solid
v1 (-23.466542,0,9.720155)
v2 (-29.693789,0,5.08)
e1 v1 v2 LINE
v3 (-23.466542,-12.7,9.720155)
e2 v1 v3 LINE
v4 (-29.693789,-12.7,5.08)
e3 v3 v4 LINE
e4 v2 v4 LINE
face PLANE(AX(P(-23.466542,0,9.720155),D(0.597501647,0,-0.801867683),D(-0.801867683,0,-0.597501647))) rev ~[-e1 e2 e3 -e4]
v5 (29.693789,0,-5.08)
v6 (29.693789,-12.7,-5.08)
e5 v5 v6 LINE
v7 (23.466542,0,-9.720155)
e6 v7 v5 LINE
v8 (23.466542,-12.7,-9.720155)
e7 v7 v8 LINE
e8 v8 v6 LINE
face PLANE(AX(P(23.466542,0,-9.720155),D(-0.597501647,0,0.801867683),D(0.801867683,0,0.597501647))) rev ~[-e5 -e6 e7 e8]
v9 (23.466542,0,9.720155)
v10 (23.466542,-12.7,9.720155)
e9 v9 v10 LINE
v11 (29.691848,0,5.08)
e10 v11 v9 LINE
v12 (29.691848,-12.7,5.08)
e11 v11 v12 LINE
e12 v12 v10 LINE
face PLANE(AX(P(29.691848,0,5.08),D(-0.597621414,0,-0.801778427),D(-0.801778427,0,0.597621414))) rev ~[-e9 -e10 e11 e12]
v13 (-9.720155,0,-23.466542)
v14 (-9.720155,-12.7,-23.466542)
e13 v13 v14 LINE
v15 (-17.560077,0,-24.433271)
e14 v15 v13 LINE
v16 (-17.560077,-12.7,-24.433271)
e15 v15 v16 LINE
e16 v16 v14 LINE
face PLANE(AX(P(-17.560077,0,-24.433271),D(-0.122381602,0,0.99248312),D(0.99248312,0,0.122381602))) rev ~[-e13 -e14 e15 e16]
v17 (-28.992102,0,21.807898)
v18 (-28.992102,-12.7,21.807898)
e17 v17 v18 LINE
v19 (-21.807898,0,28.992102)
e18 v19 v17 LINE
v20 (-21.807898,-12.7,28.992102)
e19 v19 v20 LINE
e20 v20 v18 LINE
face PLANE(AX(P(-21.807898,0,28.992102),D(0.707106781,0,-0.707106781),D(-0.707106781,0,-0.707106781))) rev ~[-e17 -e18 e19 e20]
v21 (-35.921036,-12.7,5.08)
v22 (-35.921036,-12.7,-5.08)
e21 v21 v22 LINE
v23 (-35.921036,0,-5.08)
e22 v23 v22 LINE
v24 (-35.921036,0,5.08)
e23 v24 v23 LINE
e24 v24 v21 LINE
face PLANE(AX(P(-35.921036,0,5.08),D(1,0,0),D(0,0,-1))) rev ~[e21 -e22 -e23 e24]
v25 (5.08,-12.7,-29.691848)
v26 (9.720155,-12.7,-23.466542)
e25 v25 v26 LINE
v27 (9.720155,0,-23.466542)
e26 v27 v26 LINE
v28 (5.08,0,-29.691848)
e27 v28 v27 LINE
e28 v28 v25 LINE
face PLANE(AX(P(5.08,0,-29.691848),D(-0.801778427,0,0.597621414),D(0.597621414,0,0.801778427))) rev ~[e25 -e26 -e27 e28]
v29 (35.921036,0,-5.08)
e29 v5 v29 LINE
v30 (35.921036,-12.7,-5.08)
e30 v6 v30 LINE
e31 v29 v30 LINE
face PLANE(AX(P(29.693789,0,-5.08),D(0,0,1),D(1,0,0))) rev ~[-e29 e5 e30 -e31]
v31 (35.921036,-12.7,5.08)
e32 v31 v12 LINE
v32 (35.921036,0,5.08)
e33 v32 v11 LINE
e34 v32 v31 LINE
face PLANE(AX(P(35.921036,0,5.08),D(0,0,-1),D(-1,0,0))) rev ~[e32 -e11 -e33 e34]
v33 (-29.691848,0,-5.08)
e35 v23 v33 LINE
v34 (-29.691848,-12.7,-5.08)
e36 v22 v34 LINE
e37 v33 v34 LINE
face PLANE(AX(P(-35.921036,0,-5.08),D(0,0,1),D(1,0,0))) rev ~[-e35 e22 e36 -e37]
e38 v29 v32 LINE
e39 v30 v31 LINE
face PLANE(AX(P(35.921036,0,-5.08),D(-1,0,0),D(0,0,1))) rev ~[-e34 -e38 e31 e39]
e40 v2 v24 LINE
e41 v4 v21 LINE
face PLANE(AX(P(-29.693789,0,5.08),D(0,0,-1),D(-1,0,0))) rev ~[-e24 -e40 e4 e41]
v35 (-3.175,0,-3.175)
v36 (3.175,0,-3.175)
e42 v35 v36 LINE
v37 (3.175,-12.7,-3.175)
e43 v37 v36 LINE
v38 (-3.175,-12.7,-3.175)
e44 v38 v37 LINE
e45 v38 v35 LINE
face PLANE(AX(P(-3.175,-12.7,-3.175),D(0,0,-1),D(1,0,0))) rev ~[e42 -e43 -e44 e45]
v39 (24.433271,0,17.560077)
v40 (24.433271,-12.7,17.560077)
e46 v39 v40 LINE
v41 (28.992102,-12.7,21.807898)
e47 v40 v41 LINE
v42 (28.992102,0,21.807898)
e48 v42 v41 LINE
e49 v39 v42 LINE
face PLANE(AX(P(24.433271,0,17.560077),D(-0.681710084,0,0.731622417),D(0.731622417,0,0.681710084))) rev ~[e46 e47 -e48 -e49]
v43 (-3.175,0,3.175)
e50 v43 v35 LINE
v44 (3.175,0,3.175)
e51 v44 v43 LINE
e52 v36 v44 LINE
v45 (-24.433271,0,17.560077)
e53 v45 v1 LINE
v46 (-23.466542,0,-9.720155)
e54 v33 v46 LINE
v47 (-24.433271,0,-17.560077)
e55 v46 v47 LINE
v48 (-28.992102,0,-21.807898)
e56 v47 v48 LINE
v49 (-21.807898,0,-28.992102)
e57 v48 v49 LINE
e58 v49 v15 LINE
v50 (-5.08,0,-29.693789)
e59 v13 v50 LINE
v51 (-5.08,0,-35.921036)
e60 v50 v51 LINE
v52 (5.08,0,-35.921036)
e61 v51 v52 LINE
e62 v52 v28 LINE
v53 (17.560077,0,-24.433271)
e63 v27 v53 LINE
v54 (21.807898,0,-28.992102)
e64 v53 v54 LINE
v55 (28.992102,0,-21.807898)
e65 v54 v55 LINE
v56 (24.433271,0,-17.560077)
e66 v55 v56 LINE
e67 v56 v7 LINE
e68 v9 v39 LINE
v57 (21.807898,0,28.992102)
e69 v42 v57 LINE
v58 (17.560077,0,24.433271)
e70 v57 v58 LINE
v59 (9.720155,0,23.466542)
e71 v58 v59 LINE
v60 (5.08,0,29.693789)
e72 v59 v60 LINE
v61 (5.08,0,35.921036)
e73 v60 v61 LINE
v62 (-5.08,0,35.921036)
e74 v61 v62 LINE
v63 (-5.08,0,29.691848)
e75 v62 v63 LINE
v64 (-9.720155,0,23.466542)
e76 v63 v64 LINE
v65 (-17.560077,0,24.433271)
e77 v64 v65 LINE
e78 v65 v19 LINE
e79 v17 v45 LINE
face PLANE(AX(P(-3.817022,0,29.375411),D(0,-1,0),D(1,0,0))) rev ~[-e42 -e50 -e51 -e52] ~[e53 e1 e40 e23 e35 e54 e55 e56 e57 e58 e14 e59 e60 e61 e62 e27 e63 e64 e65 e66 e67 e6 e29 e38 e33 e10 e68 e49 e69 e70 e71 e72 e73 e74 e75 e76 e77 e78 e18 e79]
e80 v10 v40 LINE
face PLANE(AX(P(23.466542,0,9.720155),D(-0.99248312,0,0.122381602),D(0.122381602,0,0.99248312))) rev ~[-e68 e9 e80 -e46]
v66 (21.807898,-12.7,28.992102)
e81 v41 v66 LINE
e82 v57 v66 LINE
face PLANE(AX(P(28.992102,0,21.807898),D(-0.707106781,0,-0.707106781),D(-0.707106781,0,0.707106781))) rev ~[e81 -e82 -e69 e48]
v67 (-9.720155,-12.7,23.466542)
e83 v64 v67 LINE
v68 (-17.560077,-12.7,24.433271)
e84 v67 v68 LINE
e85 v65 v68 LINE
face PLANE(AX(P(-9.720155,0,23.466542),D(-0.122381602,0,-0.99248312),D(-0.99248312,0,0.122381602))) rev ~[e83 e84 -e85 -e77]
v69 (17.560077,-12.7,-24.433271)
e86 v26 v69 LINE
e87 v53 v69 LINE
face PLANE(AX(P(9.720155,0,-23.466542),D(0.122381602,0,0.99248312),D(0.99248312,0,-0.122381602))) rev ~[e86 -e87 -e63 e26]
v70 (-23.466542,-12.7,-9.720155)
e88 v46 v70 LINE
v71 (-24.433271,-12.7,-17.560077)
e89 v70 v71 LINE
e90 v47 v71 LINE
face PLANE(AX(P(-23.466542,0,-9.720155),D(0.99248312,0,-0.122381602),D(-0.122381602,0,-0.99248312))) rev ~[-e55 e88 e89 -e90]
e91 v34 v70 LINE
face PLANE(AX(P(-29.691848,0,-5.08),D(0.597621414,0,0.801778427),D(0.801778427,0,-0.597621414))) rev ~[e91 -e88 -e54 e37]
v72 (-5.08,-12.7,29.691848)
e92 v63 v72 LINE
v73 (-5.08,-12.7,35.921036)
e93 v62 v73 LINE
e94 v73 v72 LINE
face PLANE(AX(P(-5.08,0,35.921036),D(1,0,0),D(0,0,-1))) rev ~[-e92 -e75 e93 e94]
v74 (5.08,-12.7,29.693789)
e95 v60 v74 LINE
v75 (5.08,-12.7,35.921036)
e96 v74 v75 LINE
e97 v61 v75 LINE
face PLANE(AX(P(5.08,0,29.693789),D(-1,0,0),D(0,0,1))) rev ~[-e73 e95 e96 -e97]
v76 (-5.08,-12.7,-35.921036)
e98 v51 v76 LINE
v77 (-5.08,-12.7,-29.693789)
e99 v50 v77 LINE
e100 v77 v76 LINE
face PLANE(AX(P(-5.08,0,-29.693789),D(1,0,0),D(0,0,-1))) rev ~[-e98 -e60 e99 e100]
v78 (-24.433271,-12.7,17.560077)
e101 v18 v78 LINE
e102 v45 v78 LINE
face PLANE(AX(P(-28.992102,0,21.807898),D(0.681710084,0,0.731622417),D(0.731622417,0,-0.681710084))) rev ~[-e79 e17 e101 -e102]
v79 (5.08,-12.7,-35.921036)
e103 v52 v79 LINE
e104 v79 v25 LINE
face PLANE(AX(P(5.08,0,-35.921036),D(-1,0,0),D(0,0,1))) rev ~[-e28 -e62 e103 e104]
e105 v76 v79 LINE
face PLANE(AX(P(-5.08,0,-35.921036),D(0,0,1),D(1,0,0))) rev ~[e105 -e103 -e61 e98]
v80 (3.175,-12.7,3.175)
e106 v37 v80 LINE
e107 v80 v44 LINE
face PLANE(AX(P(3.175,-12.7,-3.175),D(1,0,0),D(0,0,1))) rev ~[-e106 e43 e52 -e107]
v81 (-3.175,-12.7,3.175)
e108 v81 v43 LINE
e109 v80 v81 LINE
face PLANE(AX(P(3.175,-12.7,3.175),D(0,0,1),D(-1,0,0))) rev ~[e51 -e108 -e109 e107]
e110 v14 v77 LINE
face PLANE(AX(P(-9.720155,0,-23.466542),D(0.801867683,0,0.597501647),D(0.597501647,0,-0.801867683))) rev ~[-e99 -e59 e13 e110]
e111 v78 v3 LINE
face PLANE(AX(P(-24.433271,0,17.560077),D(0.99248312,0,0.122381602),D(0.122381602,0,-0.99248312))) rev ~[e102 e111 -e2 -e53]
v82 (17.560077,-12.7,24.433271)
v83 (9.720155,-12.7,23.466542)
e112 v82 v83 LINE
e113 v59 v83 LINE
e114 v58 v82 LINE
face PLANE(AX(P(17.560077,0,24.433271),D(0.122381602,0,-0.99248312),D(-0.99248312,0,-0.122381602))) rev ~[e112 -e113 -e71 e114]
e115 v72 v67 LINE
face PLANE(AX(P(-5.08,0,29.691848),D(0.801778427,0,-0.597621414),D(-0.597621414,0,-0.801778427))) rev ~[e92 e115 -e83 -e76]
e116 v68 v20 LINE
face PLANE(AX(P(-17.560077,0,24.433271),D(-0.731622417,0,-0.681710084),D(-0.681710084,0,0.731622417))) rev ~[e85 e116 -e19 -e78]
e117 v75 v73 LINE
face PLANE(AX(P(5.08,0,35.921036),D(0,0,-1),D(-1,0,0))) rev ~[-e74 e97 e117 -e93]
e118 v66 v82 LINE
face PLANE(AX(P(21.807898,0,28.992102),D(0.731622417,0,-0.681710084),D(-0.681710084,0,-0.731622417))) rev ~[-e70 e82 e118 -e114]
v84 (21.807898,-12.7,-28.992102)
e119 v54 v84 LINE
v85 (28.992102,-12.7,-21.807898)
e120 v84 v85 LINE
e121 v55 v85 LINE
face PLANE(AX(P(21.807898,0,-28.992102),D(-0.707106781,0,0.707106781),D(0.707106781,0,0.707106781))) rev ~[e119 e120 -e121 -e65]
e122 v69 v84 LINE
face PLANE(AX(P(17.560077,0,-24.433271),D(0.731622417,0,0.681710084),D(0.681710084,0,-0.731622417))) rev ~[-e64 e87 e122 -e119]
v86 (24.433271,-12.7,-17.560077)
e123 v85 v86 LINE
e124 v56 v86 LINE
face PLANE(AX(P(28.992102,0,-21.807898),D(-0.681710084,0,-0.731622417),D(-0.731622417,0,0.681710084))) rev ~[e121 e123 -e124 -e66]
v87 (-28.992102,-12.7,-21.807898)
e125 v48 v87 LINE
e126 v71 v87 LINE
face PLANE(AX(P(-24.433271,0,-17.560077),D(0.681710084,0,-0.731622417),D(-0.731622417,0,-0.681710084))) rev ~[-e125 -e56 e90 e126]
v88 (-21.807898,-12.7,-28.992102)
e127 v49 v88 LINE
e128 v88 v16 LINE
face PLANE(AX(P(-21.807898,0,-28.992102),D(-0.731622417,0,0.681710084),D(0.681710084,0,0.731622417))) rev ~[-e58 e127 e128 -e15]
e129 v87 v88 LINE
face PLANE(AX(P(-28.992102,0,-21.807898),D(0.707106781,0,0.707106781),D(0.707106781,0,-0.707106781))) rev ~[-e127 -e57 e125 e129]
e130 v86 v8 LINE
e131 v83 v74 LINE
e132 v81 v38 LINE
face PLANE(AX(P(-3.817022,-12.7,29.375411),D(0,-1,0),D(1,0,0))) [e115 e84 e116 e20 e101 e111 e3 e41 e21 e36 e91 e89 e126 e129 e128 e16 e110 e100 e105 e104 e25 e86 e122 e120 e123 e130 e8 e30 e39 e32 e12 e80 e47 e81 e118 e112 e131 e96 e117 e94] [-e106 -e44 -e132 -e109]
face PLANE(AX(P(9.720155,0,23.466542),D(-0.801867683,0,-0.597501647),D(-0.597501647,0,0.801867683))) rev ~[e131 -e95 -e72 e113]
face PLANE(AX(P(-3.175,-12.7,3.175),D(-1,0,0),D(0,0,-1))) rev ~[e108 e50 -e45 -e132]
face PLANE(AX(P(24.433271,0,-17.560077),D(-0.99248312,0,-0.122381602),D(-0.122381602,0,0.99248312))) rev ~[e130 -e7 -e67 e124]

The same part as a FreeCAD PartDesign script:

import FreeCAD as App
import Part
import Sketcher

V = App.Vector
Q = App.Units.Quantity


def add_polygon(sketch, points):
    """Adds a closed chain of lines whose ends are joined by coincident constraints."""
    first, n = sketch.GeometryCount, len(points)
    for a, b in zip(points, points[1:] + points[:1]):
        sketch.addGeometry(Part.LineSegment(App.Vector(*a, 0), App.Vector(*b, 0)), False)
    for i in range(n):
        sketch.addConstraint(Sketcher.Constraint("Coincident", first + i, 2, first + (i + 1) % n, 1))

doc = App.newDocument("Part")
body = doc.addObject("PartDesign::Body", "Body")

sketch1 = body.newObject("Sketcher::SketchObject", "Sketch")
sketch1.AttachmentSupport = (doc.getObject("XZ_Plane"), [""])
sketch1.MapMode = "FlatFace"
add_polygon(sketch1, [(10, 23), (5, 30), (5, 36), (-5, 36), (-5, 30), (-10, 23), (-18, 24), (-22, 29), (-29, 22), (-24, 18), (-23, 10), (-30, 5), (-36, 5), (-36, -5), (-30, -5), (-23, -10), (-24, -18), (-29, -22), (-22, -29), (-18, -24), (-10, -23), (-5, -30), (-5, -36), (5, -36), (5, -30), (10, -23), (18, -24), (22, -29), (29, -22), (24, -18), (23, -10), (30, -5), (36, -5), (36, 5), (30, 5), (23, 10), (24, 18), (29, 22), (22, 29), (18, 24)])
sketch1.addConstraint(Sketcher.Constraint("Vertical", 1))
sketch1.addConstraint(Sketcher.Constraint("Horizontal", 2))
sketch1.addConstraint(Sketcher.Constraint("Vertical", 3))
sketch1.addConstraint(Sketcher.Constraint("Horizontal", 11))
sketch1.addConstraint(Sketcher.Constraint("Vertical", 12))
sketch1.addConstraint(Sketcher.Constraint("Horizontal", 13))
sketch1.addConstraint(Sketcher.Constraint("Vertical", 21))
sketch1.addConstraint(Sketcher.Constraint("Horizontal", 22))
sketch1.addConstraint(Sketcher.Constraint("Vertical", 23))
sketch1.addConstraint(Sketcher.Constraint("Horizontal", 31))
sketch1.addConstraint(Sketcher.Constraint("Vertical", 32))
sketch1.addConstraint(Sketcher.Constraint("Horizontal", 33))
sketch1.addConstraint(Sketcher.Constraint("Symmetric", 0, 2, 20, 2, -1, 1))
sketch1.addConstraint(Sketcher.Constraint("Symmetric", 2, 2, 22, 2, -1, 1))
sketch1.addConstraint(Sketcher.Constraint("Symmetric", 4, 2, 24, 2, -1, 1))
sketch1.addConstraint(Sketcher.Constraint("Symmetric", 5, 2, 25, 2, -1, 1))
sketch1.addConstraint(Sketcher.Constraint("Symmetric", 6, 2, 26, 2, -1, 1))
sketch1.addConstraint(Sketcher.Constraint("Symmetric", 7, 2, 27, 2, -1, 1))
sketch1.addConstraint(Sketcher.Constraint("Symmetric", 8, 2, 28, 2, -1, 1))
sketch1.addConstraint(Sketcher.Constraint("Symmetric", 9, 2, 29, 2, -1, 1))
sketch1.addConstraint(Sketcher.Constraint("Symmetric", 10, 2, 30, 2, -1, 1))
sketch1.addConstraint(Sketcher.Constraint("Symmetric", 12, 2, 32, 2, -1, 1))
sketch1.addConstraint(Sketcher.Constraint("Symmetric", 14, 2, 34, 2, -1, 1))
sketch1.addConstraint(Sketcher.Constraint("Symmetric", 15, 2, 35, 2, -1, 1))
sketch1.addConstraint(Sketcher.Constraint("Symmetric", 16, 2, 36, 2, -1, 1))
sketch1.addConstraint(Sketcher.Constraint("Symmetric", 17, 2, 37, 2, -1, 1))
sketch1.addConstraint(Sketcher.Constraint("Symmetric", 18, 2, 38, 2, -1, 1))
sketch1.addConstraint(Sketcher.Constraint("Symmetric", 19, 2, 39, 2, -1, 1))
sketch1.addConstraint(Sketcher.Constraint("Symmetric", 19, 2, 24, 2, -2))
sketch1.addConstraint(Sketcher.Constraint("Symmetric", 18, 2, 25, 2, -2))
sketch1.addConstraint(Sketcher.Constraint("Symmetric", 17, 2, 26, 2, -2))
sketch1.addConstraint(Sketcher.Constraint("Symmetric", 16, 2, 27, 2, -2))
sketch1.addConstraint(Sketcher.Constraint("Symmetric", 15, 2, 28, 2, -2))
sketch1.addConstraint(Sketcher.Constraint("Symmetric", 14, 2, 29, 2, -2))
sketch1.addConstraint(Sketcher.Constraint("Perpendicular", 0, 10))
sketch1.addConstraint(Sketcher.Constraint("Perpendicular", 4, 14))
sketch1.addConstraint(Sketcher.Constraint("Perpendicular", 5, 15))
sketch1.addConstraint(Sketcher.Constraint("Perpendicular", 6, 16))
sketch1.addConstraint(Sketcher.Constraint("Perpendicular", 7, 17))
sketch1.addConstraint(Sketcher.Constraint("Perpendicular", 14, 24))
sketch1.addConstraint(Sketcher.Constraint("Perpendicular", 24, 34))
sketch1.addConstraint(Sketcher.Constraint("Horizontal", 13, 2, 30, 2))
sketch1.addConstraint(Sketcher.Constraint("Vertical", 3, 2, 20, 2))
sketch1.addConstraint(Sketcher.Constraint("Equal", 31, 1))
sketch1.addConstraint(Sketcher.Constraint("Equal", 22, 12))
sketch1.addConstraint(Sketcher.Constraint("Equal", 6, 8))
sketch1.addConstraint(Sketcher.Constraint("Equal", 5, 9))
sketch1.addConstraint(Sketcher.Constraint("Equal", 0, 10))
sketch1.addConstraint(Sketcher.Constraint("DistanceX", 2, 2, 2, 1, Q("0.4 in")))
sketch1.addConstraint(Sketcher.Constraint("Distance", 7, Q("0.4 in")))
sketch1.addConstraint(Sketcher.Constraint("Distance", 5, Q("7.8993 mm")))
sketch1.addConstraint(Sketcher.Constraint("DistanceX", 13, 1, 13, 2, Q("6.229188 mm")))
sketch1.addConstraint(Sketcher.Constraint("DistanceX", 6, 2, -1, 1, Q("21.807898 mm")))
sketch1.addConstraint(Sketcher.Constraint("Distance", 0, Q("7.765928 mm")))
sketch1.addConstraint(Sketcher.Constraint("DistanceX", 11, 2, 11, 1, Q("6.227247 mm")))
sketch1.addConstraint(Sketcher.Constraint("DistanceY", -1, 1, 0, 2, Q("29.693789 mm")))
sketch1.addConstraint(Sketcher.Constraint("DistanceY", -1, 1, 5, 2, Q("24.433271 mm")))
sketch1.addConstraint(Sketcher.Constraint("DistanceX", 5, 2, 4, 2, Q("7.839922 mm")))
pad1 = body.newObject("PartDesign::Pad", "Pad")
pad1.Profile = sketch1
pad1.Length = Q("0.5 in")

sketch2 = body.newObject("Sketcher::SketchObject", "Sketch001")
sketch2.AttachmentSupport = (doc.getObject("XZ_Plane"), [""])
sketch2.MapMode = "FlatFace"
sketch2.AttachmentOffset = App.Placement(V(0, 0, 0.5 * 25.4), App.Rotation())
add_polygon(sketch2, [(3, -3), (3, 3), (-3, 3), (-3, -3)])
sketch2.addConstraint(Sketcher.Constraint("Vertical", 0))
sketch2.addConstraint(Sketcher.Constraint("Horizontal", 1))
sketch2.addConstraint(Sketcher.Constraint("Vertical", 2))
sketch2.addConstraint(Sketcher.Constraint("Horizontal", 3))
sketch2.addConstraint(Sketcher.Constraint("Symmetric", 0, 2, 2, 2, -1, 1))
sketch2.addConstraint(Sketcher.Constraint("Equal", 3, 0))
sketch2.addConstraint(Sketcher.Constraint("DistanceX", 1, 2, 1, 1, Q("0.25 in")))
pocket1 = body.newObject("PartDesign::Pocket", "Pocket")
pocket1.Profile = sketch2
pocket1.Length = Q("0.5 in")

doc.recompute()
